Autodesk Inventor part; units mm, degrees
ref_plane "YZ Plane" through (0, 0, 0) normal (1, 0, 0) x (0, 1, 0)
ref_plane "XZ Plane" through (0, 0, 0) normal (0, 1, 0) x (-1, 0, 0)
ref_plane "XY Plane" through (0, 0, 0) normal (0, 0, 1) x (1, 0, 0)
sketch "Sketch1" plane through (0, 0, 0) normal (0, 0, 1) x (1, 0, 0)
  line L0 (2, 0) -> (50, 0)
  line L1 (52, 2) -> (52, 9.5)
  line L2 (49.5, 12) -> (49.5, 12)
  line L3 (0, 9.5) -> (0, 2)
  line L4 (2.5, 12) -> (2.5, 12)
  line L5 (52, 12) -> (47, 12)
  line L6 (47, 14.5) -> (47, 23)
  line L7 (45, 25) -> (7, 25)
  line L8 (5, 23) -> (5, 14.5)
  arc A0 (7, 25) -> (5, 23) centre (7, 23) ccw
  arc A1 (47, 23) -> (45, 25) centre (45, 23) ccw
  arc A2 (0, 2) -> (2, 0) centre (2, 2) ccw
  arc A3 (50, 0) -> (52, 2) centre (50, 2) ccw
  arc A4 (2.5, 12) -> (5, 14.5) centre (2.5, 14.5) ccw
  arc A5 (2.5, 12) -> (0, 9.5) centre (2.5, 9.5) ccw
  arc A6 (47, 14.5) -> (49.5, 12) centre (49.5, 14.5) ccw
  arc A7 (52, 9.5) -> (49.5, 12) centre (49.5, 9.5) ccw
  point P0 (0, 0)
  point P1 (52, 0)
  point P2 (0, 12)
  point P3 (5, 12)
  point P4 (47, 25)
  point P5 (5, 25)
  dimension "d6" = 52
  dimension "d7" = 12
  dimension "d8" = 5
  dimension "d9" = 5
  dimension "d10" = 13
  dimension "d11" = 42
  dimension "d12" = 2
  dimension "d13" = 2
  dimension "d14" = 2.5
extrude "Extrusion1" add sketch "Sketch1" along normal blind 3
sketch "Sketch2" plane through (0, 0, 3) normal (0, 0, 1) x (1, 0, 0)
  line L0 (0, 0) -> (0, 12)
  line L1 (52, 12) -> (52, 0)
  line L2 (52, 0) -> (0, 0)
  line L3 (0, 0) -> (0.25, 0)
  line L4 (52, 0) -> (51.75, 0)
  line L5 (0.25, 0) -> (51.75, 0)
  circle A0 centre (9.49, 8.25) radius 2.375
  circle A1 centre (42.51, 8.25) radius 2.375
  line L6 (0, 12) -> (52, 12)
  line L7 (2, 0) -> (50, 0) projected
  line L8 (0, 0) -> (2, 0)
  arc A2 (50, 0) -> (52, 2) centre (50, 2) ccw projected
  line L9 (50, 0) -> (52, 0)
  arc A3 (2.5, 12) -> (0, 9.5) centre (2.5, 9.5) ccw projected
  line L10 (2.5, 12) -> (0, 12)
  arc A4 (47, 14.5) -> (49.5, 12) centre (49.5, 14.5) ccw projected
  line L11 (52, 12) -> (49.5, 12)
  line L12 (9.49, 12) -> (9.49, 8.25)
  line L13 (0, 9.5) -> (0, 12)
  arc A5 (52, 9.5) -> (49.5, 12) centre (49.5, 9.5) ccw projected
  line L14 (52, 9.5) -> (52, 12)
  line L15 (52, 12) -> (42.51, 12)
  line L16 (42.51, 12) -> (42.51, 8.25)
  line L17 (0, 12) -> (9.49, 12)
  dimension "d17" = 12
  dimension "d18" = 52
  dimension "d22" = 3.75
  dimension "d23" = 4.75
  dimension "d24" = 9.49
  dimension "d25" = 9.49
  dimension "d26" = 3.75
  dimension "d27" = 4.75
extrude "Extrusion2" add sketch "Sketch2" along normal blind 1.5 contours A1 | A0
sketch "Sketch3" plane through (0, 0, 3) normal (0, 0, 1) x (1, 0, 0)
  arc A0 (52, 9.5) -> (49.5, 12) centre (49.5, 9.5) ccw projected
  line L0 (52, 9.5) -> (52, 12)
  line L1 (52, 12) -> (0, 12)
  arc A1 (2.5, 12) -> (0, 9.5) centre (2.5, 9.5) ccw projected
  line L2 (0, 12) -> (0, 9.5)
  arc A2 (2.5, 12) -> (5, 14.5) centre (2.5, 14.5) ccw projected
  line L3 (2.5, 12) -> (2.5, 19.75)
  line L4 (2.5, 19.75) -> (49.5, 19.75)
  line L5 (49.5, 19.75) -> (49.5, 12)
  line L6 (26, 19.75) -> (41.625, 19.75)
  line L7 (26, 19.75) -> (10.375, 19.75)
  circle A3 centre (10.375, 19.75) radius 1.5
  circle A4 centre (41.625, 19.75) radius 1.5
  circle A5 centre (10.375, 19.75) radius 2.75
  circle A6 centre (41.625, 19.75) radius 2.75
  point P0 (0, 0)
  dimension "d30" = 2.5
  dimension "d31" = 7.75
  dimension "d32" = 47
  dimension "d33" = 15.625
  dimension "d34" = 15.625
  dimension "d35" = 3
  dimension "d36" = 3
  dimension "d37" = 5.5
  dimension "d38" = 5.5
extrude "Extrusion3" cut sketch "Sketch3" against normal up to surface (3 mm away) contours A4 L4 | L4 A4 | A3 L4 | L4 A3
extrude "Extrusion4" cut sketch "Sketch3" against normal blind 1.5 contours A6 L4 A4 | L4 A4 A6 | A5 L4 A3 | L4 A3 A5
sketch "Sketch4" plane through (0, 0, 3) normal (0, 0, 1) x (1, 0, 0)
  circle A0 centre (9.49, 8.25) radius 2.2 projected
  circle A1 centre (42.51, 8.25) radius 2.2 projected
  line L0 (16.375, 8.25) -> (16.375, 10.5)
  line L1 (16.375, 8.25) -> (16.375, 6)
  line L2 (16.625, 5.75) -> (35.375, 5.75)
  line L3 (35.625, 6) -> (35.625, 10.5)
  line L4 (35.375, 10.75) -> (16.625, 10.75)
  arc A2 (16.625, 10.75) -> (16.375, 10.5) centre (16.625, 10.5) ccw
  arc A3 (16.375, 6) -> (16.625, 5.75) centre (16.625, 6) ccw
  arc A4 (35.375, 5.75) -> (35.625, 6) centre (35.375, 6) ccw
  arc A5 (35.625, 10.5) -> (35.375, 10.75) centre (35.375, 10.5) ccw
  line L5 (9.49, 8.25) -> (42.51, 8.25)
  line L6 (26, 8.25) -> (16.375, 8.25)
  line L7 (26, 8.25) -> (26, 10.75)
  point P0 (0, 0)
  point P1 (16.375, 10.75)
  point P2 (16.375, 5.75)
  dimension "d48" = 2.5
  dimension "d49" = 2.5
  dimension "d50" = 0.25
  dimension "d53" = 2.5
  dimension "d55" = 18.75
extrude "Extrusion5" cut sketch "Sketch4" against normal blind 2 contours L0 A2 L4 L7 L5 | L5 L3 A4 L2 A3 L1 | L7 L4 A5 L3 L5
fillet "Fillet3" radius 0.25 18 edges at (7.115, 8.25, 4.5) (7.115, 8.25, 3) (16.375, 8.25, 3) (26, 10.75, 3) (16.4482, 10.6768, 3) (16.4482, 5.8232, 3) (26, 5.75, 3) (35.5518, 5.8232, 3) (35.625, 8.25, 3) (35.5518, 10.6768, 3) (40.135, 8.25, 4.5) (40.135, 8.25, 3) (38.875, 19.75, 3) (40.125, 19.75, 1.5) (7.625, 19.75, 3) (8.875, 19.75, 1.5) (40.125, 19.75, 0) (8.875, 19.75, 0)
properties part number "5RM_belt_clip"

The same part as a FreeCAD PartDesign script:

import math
import FreeCAD as App
import Part
import Sketcher
from FreeCAD import Vector


def edges_at(feature, points):
    """Names of the edges that pass closest to the given points."""
    edges = feature.Shape.Edges
    near = lambda p: min(range(len(edges)), key=lambda i: edges[i].distToShape(Part.Vertex(*p))[0])
    return sorted({f"Edge{near(p) + 1}" for p in points})

doc = App.newDocument("Part")
body = doc.addObject("PartDesign::Body", "Body")

# Sketch on XY plane
sketch1 = body.newObject("Sketcher::SketchObject", "Sketch")
sketch1.AttachmentSupport = (doc.getObject("XY_Plane"), [""])
sketch1.MapMode = "FlatFace"
sketch1.addGeometry([
    Part.ArcOfCircle(Part.Circle(Vector(2, 2, 0), Vector(0, 0, 1), 2), math.radians(180), math.radians(270)),  # 0
    Part.LineSegment(Vector(2, 0, 0), Vector(50, 0, 0)),  # 1
    Part.ArcOfCircle(Part.Circle(Vector(50, 2, 0), Vector(0, 0, 1), 2), math.radians(-90), math.radians(0)),  # 2
    Part.LineSegment(Vector(52, 2, 0), Vector(52, 9.5, 0)),  # 3
    Part.ArcOfCircle(Part.Circle(Vector(49.5, 9.5, 0), Vector(0, 0, 1), 2.5), math.radians(0), math.radians(90)),  # 4
    Part.ArcOfCircle(Part.Circle(Vector(49.5, 14.5, 0), Vector(0, 0, 1), 2.5), math.radians(180), math.radians(270)),  # 5
    Part.LineSegment(Vector(47, 14.5, 0), Vector(47, 23, 0)),  # 6
    Part.ArcOfCircle(Part.Circle(Vector(45, 23, 0), Vector(0, 0, 1), 2), math.radians(0), math.radians(90)),  # 7
    Part.LineSegment(Vector(45, 25, 0), Vector(7, 25, 0)),  # 8
    Part.ArcOfCircle(Part.Circle(Vector(7, 23, 0), Vector(0, 0, 1), 2), math.radians(90), math.radians(180)),  # 9
    Part.LineSegment(Vector(5, 23, 0), Vector(5, 14.5, 0)),  # 10
    Part.ArcOfCircle(Part.Circle(Vector(2.5, 14.5, 0), Vector(0, 0, 1), 2.5), math.radians(-90), math.radians(0)),  # 11
    Part.ArcOfCircle(Part.Circle(Vector(2.5, 9.5, 0), Vector(0, 0, 1), 2.5), math.radians(90), math.radians(180)),  # 12
    Part.LineSegment(Vector(0, 9.5, 0), Vector(0, 2, 0)),  # 13
], False)
sketch1.addConstraint([
    Sketcher.Constraint("Tangent", 0, 2, 1, 1),
    Sketcher.Constraint("Tangent", 1, 2, 2, 1),
    Sketcher.Constraint("Tangent", 2, 2, 3, 1),
    Sketcher.Constraint("Tangent", 3, 2, 4, 1),
    Sketcher.Constraint("Tangent", 4, 2, 5, 2),
    Sketcher.Constraint("Tangent", 5, 1, 6, 1),
    Sketcher.Constraint("Tangent", 6, 2, 7, 1),
    Sketcher.Constraint("Tangent", 7, 2, 8, 1),
    Sketcher.Constraint("Tangent", 8, 2, 9, 1),
    Sketcher.Constraint("Tangent", 9, 2, 10, 1),
    Sketcher.Constraint("Tangent", 10, 2, 11, 2),
    Sketcher.Constraint("Tangent", 11, 1, 12, 1),
    Sketcher.Constraint("Tangent", 12, 2, 13, 1),
    Sketcher.Constraint("Tangent", 13, 2, 0, 1),
    Sketcher.Constraint("Horizontal", 1),
    Sketcher.Constraint("Vertical", 3),
    Sketcher.Constraint("Vertical", 6),
    Sketcher.Constraint("Horizontal", 8),
    Sketcher.Constraint("Vertical", 10),
    Sketcher.Constraint("Vertical", 13),
    Sketcher.Constraint("Equal", 0, 2),
    Sketcher.Constraint("Equal", 4, 5),
    Sketcher.Constraint("Equal", 2, 7),
    Sketcher.Constraint("Equal", 7, 9),
    Sketcher.Constraint("Equal", 5, 11),
    Sketcher.Constraint("Equal", 11, 12),
    Sketcher.Constraint("PointOnObject", 0, 2, -1),
    Sketcher.Constraint("PointOnObject", 12, 2, -2),
    Sketcher.Constraint("Horizontal", 5, 3, 11, 3),
    Sketcher.Constraint("Vertical", 4, 3, 5, 3),
    Sketcher.Constraint("Vertical", 11, 3, 12, 3),
    Sketcher.Constraint("Radius", 0, 2.0),
    Sketcher.Constraint("Radius", 4, 2.5),
    Sketcher.Constraint("DistanceX", -1, 1, 2, 2, 52.0),
    Sketcher.Constraint("DistanceY", -1, 1, 4, 2, 12.0),
    Sketcher.Constraint("DistanceY", 4, 2, 7, 2, 13.0),
])
pad1 = body.newObject("PartDesign::Pad", "Pad")
pad1.Profile = sketch1
pad1.Length = 3

# Sketch on XY plane
sketch2 = body.newObject("Sketcher::SketchObject", "Sketch001")
sketch2.AttachmentSupport = (doc.getObject("XY_Plane"), [""])
sketch2.MapMode = "FlatFace"
sketch2.AttachmentOffset = App.Placement(Vector(0, 0, 3), App.Rotation())
sketch2.addGeometry([
    Part.Circle(Vector(42.51, 8.25, 0), Vector(0, 0, 1), 2.375),
    Part.Circle(Vector(9.49, 8.25, 0), Vector(0, 0, 1), 2.375),
], False)
sketch2.addConstraint([
    Sketcher.Constraint("Equal", 0, 1),
    Sketcher.Constraint("Horizontal", 0, 3, 1, 3),
    Sketcher.Constraint("Diameter", 0, 4.75),
    Sketcher.Constraint("DistanceX", -1, 1, 1, 3, 9.49),
    Sketcher.Constraint("DistanceX", -1, 1, 0, 3, 42.51),
    Sketcher.Constraint("DistanceY", -1, 1, 0, 3, 8.25),
])
pad2 = body.newObject("PartDesign::Pad", "Pad001")
pad2.Profile = sketch2
pad2.Length = 1.5

# Sketch on XY plane
sketch3 = body.newObject("Sketcher::SketchObject", "Sketch002")
sketch3.AttachmentSupport = (doc.getObject("XY_Plane"), [""])
sketch3.MapMode = "FlatFace"
sketch3.AttachmentOffset = App.Placement(Vector(0, 0, 3), App.Rotation())
sketch3.addGeometry([
    Part.Circle(Vector(41.625, 19.75, 0), Vector(0, 0, 1), 1.5),
    Part.Circle(Vector(10.375, 19.75, 0), Vector(0, 0, 1), 1.5),
], False)
sketch3.addConstraint([
    Sketcher.Constraint("Equal", 0, 1),
    Sketcher.Constraint("Horizontal", 0, 3, 1, 3),
    Sketcher.Constraint("Diameter", 0, 3.0),
    Sketcher.Constraint("DistanceY", -1, 1, 0, 3, 19.75),
    Sketcher.Constraint("DistanceX", 1, 3, 0, 3, 31.25),
    Sketcher.Constraint("DistanceX", -1, 1, 0, 3, 41.625),
])
pocket1 = body.newObject("PartDesign::Pocket", "Pocket")
pocket1.Profile = sketch3
pocket1.Length = 3

# Sketch on XY plane
sketch4 = body.newObject("Sketcher::SketchObject", "Sketch003")
sketch4.AttachmentSupport = (doc.getObject("XY_Plane"), [""])
sketch4.MapMode = "FlatFace"
sketch4.AttachmentOffset = App.Placement(Vector(0, 0, 3), App.Rotation())
sketch4.addGeometry([
    Part.Circle(Vector(41.625, 19.75, 0), Vector(0, 0, 1), 2.75),
    Part.Circle(Vector(41.625, 19.75, 0), Vector(0, 0, 1), 1.5),
    Part.Circle(Vector(10.375, 19.75, 0), Vector(0, 0, 1), 2.75),
    Part.Circle(Vector(10.375, 19.75, 0), Vector(0, 0, 1), 1.5),
], False)
sketch4.addConstraint([
    Sketcher.Constraint("Coincident", 1, 3, 0, 3),
    Sketcher.Constraint("Coincident", 3, 3, 2, 3),
    Sketcher.Constraint("Equal", 0, 2),
    Sketcher.Constraint("Equal", 1, 3),
    Sketcher.Constraint("Horizontal", 1, 3, 2, 3),
    Sketcher.Constraint("Diameter", 1, 3.0),
    Sketcher.Constraint("Diameter", 0, 5.5),
    Sketcher.Constraint("DistanceY", -1, 1, 0, 3, 19.75),
    Sketcher.Constraint("DistanceX", 2, 3, 0, 3, 31.25),
    Sketcher.Constraint("DistanceX", -1, 1, 0, 3, 41.625),
])
pocket2 = body.newObject("PartDesign::Pocket", "Pocket001")
pocket2.Profile = sketch4
pocket2.Length = 1.5

# Sketch on XY plane
sketch5 = body.newObject("Sketcher::SketchObject", "Sketch004")
sketch5.AttachmentSupport = (doc.getObject("XY_Plane"), [""])
sketch5.MapMode = "FlatFace"
sketch5.AttachmentOffset = App.Placement(Vector(0, 0, 3), App.Rotation())
sketch5.addGeometry([
    Part.LineSegment(Vector(16.375, 10.5, 0), Vector(16.375, 6, 0)),  # 0
    Part.ArcOfCircle(Part.Circle(Vector(16.625, 6, 0), Vector(0, 0, 1), 0.25), math.radians(180), math.radians(270)),  # 1
    Part.LineSegment(Vector(16.625, 5.75, 0), Vector(35.375, 5.75, 0)),  # 2
    Part.ArcOfCircle(Part.Circle(Vector(35.375, 6, 0), Vector(0, 0, 1), 0.25), math.radians(-90), math.radians(0)),  # 3
    Part.LineSegment(Vector(35.625, 6, 0), Vector(35.625, 10.5, 0)),  # 4
    Part.ArcOfCircle(Part.Circle(Vector(35.375, 10.5, 0), Vector(0, 0, 1), 0.25), math.radians(0), math.radians(90)),  # 5
    Part.LineSegment(Vector(35.375, 10.75, 0), Vector(16.625, 10.75, 0)),  # 6
    Part.ArcOfCircle(Part.Circle(Vector(16.625, 10.5, 0), Vector(0, 0, 1), 0.25), math.radians(90), math.radians(180)),  # 7
], False)
sketch5.addConstraint([
    Sketcher.Constraint("Tangent", 0, 2, 1, 1),
    Sketcher.Constraint("Tangent", 1, 2, 2, 1),
    Sketcher.Constraint("Tangent", 2, 2, 3, 1),
    Sketcher.Constraint("Tangent", 3, 2, 4, 1),
    Sketcher.Constraint("Tangent", 4, 2, 5, 1),
    Sketcher.Constraint("Tangent", 5, 2, 6, 1),
    Sketcher.Constraint("Tangent", 6, 2, 7, 1),
    Sketcher.Constraint("Tangent", 7, 2, 0, 1),
    Sketcher.Constraint("Vertical", 0),
    Sketcher.Constraint("Horizontal", 2),
    Sketcher.Constraint("Vertical", 4),
    Sketcher.Constraint("Horizontal", 6),
    Sketcher.Constraint("Equal", 1, 3),
    Sketcher.Constraint("Equal", 3, 5),
    Sketcher.Constraint("Equal", 5, 7),
    Sketcher.Constraint("Radius", 1, 0.25),
    Sketcher.Constraint("DistanceX", 2, 1, 2, 2, 18.75),
    Sketcher.Constraint("DistanceY", 0, 2, 0, 1, 4.5),
    Sketcher.Constraint("DistanceY", -1, 1, 1, 3, 6.0),
    Sketcher.Constraint("DistanceX", -1, 1, 1, 3, 16.625),
])
pocket3 = body.newObject("PartDesign::Pocket", "Pocket002")
pocket3.Profile = sketch5
pocket3.Length = 2
doc.recompute()

fillet = body.newObject("PartDesign::Fillet", "Fillet")
fillet.Base = (pocket3, edges_at(pocket3, [
    (7.115, 8.25, 4.5),
    (7.115, 8.25, 3),
    (16.375, 8.25, 3),
    (26, 10.75, 3),
    (16.448, 10.677, 3),
    (16.448, 5.823, 3),
    (26, 5.75, 3),
    (35.552, 5.823, 3),
    (35.625, 8.25, 3),
    (35.552, 10.677, 3),
    (40.135, 8.25, 4.5),
    (40.135, 8.25, 3),
    (38.875, 19.75, 3),
    (40.125, 19.75, 1.5),
    (7.625, 19.75, 3),
    (8.875, 19.75, 1.5),
    (40.125, 19.75, 0),
    (8.875, 19.75, 0),
]))
fillet.Radius = 0.25

doc.recompute()
